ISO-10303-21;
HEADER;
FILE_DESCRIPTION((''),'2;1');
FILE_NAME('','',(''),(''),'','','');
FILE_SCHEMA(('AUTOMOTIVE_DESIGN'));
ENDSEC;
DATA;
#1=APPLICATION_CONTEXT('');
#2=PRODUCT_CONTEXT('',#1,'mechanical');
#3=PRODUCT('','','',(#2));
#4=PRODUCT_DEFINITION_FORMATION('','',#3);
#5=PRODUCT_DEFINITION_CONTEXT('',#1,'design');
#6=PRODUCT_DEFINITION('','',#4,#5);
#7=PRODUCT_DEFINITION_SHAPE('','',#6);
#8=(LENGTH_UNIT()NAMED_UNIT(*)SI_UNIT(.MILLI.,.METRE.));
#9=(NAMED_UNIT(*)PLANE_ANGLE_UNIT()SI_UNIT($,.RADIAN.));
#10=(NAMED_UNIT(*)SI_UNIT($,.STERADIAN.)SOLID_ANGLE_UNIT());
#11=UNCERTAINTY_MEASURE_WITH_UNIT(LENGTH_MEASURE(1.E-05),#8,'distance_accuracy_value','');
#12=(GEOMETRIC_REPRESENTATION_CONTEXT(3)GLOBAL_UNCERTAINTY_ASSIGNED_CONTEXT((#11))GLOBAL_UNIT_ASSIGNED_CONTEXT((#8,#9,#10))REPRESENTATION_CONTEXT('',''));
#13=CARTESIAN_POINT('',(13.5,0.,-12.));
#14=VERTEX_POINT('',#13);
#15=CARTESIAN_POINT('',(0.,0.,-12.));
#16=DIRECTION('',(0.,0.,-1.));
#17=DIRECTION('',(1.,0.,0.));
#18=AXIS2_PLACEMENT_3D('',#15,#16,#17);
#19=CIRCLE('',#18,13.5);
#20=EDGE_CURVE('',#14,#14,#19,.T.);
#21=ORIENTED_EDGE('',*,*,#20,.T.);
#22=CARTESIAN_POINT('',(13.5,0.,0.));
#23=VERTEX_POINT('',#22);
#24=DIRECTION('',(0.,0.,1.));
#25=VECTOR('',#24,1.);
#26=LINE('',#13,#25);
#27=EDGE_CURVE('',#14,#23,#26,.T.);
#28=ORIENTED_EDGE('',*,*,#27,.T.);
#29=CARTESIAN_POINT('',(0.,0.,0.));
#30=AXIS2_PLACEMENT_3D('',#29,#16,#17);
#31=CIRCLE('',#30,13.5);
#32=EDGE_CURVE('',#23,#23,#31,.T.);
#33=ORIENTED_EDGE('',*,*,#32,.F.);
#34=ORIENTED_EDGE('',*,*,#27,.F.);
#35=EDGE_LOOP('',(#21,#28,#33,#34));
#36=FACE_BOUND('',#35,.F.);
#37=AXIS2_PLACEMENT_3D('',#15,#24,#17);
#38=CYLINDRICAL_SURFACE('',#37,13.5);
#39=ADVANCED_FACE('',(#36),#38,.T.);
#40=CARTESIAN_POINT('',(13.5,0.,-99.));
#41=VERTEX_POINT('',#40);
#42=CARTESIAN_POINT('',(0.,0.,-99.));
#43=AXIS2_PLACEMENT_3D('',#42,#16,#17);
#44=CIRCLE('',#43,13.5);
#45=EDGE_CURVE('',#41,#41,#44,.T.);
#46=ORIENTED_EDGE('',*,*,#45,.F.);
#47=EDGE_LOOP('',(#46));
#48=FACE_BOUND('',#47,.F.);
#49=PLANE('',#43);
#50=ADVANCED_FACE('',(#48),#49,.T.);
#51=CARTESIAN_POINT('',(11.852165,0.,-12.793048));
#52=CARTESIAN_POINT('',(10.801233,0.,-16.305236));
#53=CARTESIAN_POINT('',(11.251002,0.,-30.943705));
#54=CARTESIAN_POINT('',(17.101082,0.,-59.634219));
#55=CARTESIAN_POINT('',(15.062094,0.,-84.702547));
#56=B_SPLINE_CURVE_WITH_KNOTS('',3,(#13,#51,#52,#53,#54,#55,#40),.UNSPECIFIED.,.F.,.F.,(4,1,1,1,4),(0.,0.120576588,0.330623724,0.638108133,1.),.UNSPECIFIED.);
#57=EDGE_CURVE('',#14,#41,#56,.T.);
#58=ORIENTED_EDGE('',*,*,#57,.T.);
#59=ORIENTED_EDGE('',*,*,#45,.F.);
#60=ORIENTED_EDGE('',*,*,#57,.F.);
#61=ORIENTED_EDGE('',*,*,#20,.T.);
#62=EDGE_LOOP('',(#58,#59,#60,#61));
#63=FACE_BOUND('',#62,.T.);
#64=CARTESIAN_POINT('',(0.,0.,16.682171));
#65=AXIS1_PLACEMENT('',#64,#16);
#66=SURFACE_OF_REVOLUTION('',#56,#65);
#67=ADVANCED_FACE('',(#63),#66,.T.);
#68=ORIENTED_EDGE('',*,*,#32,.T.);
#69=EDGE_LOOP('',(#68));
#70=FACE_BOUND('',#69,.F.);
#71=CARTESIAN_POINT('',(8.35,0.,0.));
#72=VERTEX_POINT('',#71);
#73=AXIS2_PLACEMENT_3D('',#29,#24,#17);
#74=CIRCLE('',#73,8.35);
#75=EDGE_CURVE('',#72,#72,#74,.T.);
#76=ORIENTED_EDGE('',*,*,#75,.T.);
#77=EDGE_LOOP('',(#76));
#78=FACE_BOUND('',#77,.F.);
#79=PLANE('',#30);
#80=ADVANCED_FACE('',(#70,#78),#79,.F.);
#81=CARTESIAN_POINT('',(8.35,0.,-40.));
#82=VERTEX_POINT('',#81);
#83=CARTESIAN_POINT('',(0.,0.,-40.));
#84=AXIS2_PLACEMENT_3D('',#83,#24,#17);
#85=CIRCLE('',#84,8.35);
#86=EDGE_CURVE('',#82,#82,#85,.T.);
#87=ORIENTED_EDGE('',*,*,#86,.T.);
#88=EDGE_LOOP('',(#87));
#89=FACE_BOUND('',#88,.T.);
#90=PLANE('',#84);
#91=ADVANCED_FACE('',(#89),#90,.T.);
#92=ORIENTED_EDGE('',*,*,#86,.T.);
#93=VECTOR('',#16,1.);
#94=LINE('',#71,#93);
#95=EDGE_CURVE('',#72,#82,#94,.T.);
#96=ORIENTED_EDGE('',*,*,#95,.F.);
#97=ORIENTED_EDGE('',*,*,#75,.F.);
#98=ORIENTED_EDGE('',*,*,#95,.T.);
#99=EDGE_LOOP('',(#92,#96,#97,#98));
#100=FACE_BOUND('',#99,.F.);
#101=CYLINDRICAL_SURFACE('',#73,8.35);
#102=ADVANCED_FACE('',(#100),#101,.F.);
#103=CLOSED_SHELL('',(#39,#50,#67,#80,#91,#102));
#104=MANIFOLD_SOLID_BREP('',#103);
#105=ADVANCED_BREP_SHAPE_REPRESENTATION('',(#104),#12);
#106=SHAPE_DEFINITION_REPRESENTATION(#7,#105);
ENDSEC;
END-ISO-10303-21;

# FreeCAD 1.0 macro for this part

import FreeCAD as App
import Part
import Sketcher

doc = App.newDocument("Part")
body = doc.addObject("PartDesign::Body", "Body")

sketch1 = doc.addObject("Sketcher::SketchObject", "Sketch")
body.addObject(sketch1)
sketch1.AttachmentSupport = (doc.XZ_Plane, [""])
sketch1.MapMode = "FlatFace"
sketch1.addGeometry([
    Part.LineSegment(App.Vector(13.5, 0, 0), App.Vector(0, 0, 0)),
    Part.LineSegment(App.Vector(0, 0, 0), App.Vector(0, -99, 0)),
    Part.LineSegment(App.Vector(0, -99, 0), App.Vector(13.5, -99, 0)),
    Part.BSplineCurve([App.Vector(13.5, -12, 0), App.Vector(11.852165, -12.793048, 0), App.Vector(10.801233, -16.305236, 0), App.Vector(11.251002, -30.943705, 0), App.Vector(17.101082, -59.634219, 0), App.Vector(15.062094, -84.702547, 0), App.Vector(13.5, -99, 0)], [4, 1, 1, 1, 4], [0, 0.120576588, 0.330623724, 0.638108133, 1], False, 3, [1, 1, 1, 1, 1, 1, 1], False),
    Part.LineSegment(App.Vector(13.5, -12, 0), App.Vector(13.5, 0, 0)),
], False)
sketch1.addConstraint([
    Sketcher.Constraint("Block", 3),
    Sketcher.Constraint("Coincident", 0, 2, 1, 1),
    Sketcher.Constraint("Coincident", 1, 2, 2, 1),
    Sketcher.Constraint("Coincident", 2, 2, 3, 2),
    Sketcher.Constraint("Coincident", 3, 1, 4, 1),
    Sketcher.Constraint("Coincident", 4, 2, 0, 1),
    Sketcher.Constraint("Horizontal", 0),
    Sketcher.Constraint("Vertical", 1),
    Sketcher.Constraint("Horizontal", 2),
    Sketcher.Constraint("Vertical", 4),
    Sketcher.Constraint("Coincident", 0, 2, -1, 1),
])
revolution = doc.addObject("PartDesign::Revolution", "Revolution")
body.addObject(revolution)
revolution.Profile = sketch1
revolution.ReferenceAxis = (sketch1, ["V_Axis"])
revolution.Angle = 360

sketch2 = doc.addObject("Sketcher::SketchObject", "Sketch001")
body.addObject(sketch2)
sketch2.AttachmentSupport = (doc.XY_Plane, [""])
sketch2.MapMode = "FlatFace"
sketch2.addGeometry(Part.Circle(App.Vector(0, 0, 0), App.Vector(0, 0, 1), 8), False)
sketch2.addConstraint([
    Sketcher.Constraint("Coincident", 0, 3, -1, 1),
    Sketcher.Constraint("Diameter", 0, 16.7),
])
pocket1 = doc.addObject("PartDesign::Pocket", "Pocket")
body.addObject(pocket1)
pocket1.Profile = sketch2
pocket1.Length = 40

doc.recompute()
